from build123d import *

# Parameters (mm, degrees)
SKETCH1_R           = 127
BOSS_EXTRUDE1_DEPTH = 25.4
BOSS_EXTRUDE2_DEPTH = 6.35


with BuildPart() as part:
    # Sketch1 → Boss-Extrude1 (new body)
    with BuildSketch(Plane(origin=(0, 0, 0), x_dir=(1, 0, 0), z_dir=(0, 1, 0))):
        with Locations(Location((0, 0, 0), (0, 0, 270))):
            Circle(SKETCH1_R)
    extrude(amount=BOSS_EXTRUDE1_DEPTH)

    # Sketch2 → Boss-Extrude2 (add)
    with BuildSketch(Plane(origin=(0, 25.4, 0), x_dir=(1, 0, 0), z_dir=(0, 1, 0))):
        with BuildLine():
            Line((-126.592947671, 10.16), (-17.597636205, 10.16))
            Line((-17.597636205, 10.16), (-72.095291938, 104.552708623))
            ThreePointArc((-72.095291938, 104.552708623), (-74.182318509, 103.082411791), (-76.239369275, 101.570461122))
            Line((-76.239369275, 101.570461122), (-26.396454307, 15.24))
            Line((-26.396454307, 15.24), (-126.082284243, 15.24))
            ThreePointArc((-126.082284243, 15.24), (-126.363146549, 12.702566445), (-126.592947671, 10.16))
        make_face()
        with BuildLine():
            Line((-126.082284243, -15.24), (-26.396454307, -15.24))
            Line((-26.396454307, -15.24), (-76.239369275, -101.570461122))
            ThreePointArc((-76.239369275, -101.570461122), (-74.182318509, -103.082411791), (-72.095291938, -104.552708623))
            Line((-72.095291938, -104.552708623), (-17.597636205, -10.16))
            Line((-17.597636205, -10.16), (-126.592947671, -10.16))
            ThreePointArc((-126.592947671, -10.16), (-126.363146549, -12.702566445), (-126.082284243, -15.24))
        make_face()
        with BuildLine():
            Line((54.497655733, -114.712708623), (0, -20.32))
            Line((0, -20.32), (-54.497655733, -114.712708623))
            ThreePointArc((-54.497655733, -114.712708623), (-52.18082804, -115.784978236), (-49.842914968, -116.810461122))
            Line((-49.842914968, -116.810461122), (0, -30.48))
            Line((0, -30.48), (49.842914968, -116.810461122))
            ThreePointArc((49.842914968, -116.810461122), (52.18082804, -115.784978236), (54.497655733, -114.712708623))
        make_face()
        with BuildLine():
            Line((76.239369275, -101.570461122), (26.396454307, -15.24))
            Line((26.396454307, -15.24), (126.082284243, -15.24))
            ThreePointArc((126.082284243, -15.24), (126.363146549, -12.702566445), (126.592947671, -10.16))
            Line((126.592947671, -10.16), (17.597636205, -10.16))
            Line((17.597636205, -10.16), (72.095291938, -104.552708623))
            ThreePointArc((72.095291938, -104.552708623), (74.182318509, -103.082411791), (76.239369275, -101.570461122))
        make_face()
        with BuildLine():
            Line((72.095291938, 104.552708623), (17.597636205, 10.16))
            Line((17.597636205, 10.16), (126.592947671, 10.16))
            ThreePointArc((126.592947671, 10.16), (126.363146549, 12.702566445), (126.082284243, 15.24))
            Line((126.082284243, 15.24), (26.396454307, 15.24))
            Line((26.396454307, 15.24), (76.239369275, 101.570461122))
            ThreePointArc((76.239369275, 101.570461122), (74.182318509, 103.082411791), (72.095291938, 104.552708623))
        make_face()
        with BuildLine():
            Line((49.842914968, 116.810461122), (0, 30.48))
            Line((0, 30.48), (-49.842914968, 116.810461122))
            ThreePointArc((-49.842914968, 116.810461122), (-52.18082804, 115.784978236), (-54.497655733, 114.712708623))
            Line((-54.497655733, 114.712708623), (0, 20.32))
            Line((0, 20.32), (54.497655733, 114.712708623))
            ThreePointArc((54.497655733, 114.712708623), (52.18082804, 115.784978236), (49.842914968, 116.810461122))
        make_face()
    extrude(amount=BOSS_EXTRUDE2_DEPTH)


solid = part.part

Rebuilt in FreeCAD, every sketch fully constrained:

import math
import FreeCAD as App
import Part
import Sketcher
from FreeCAD import Vector
Q = App.Units.Quantity

doc = App.newDocument("Part")
body = doc.addObject("PartDesign::Body", "Body")

sketch1 = body.newObject("Sketcher::SketchObject", "Sketch")
sketch1.AttachmentSupport = (doc.getObject("XZ_Plane"), [""])
sketch1.MapMode = "FlatFace"
sketch1.addGeometry(Part.Circle(Vector(0, 0, 0), Vector(0, 0, 1), 127), False)
sketch1.addConstraint([
    Sketcher.Constraint("Coincident", 0, 3, -1, 1),
    Sketcher.Constraint("Diameter", 0, Q("10 in")),
])
pad1 = body.newObject("PartDesign::Pad", "Pad")
pad1.Profile = sketch1
pad1.Length = Q("1 in")
pad1.Reversed = True

sketch2 = body.newObject("Sketcher::SketchObject", "Sketch001")
sketch2.AttachmentSupport = (doc.getObject("XZ_Plane"), [""])
sketch2.MapMode = "FlatFace"
sketch2.AttachmentOffset = App.Placement(Vector(0, 0, -1 * 25.4), App.Rotation())
sketch2.addGeometry([
    Part.LineSegment(Vector(-127, -10, 0), Vector(-18, -10, 0)),
    Part.LineSegment(Vector(-18, -10, 0), Vector(-72, -105, 0)),
    Part.ArcOfCircle(Part.Circle(Vector(0, 0, 0), Vector(0, 0, 1), 127), math.radians(-126.89), math.radians(-124.59)),
    Part.LineSegment(Vector(-76, -102, 0), Vector(-26, -15, 0)),
    Part.LineSegment(Vector(-26, -15, 0), Vector(-126, -15, 0)),
    Part.ArcOfCircle(Part.Circle(Vector(0, 0, 0), Vector(0, 0, 1), 127), math.radians(-175.41), math.radians(-173.11)),
    Part.LineSegment(Vector(-126, 15, 0), Vector(-26, 15, 0)),
    Part.LineSegment(Vector(-26, 15, 0), Vector(-76, 102, 0)),
    Part.ArcOfCircle(Part.Circle(Vector(0, 0, 0), Vector(0, 0, 1), 127), math.radians(124.59), math.radians(126.89)),
    Part.LineSegment(Vector(-72, 105, 0), Vector(-18, 10, 0)),
    Part.LineSegment(Vector(-18, 10, 0), Vector(-127, 10, 0)),
    Part.ArcOfCircle(Part.Circle(Vector(0, 0, 0), Vector(0, 0, 1), 127), math.radians(173.11), math.radians(175.41)),
    Part.LineSegment(Vector(54, 115, 0), Vector(0, 20, 0)),
    Part.LineSegment(Vector(0, 20, 0), Vector(-54, 115, 0)),
    Part.ArcOfCircle(Part.Circle(Vector(0, 0, 0), Vector(0, 0, 1), 127), math.radians(113.11), math.radians(115.41)),
    Part.LineSegment(Vector(-50, 117, 0), Vector(0, 30, 0)),
    Part.LineSegment(Vector(0, 30, 0), Vector(50, 117, 0)),
    Part.ArcOfCircle(Part.Circle(Vector(0, 0, 0), Vector(0, 0, 1), 127), math.radians(64.59), math.radians(66.89)),
    Part.LineSegment(Vector(76, 102, 0), Vector(26, 15, 0)),
    Part.LineSegment(Vector(26, 15, 0), Vector(126, 15, 0)),
    Part.ArcOfCircle(Part.Circle(Vector(0, 0, 0), Vector(0, 0, 1), 127), math.radians(4.59), math.radians(6.89)),
    Part.LineSegment(Vector(127, 10, 0), Vector(18, 10, 0)),
    Part.LineSegment(Vector(18, 10, 0), Vector(72, 105, 0)),
    Part.ArcOfCircle(Part.Circle(Vector(0, 0, 0), Vector(0, 0, 1), 127), math.radians(53.11), math.radians(55.41)),
    Part.LineSegment(Vector(72, -105, 0), Vector(18, -10, 0)),
    Part.LineSegment(Vector(18, -10, 0), Vector(127, -10, 0)),
    Part.ArcOfCircle(Part.Circle(Vector(0, 0, 0), Vector(0, 0, 1), 127), math.radians(-6.89), math.radians(-4.59)),
    Part.LineSegment(Vector(126, -15, 0), Vector(26, -15, 0)),
    Part.LineSegment(Vector(26, -15, 0), Vector(76, -102, 0)),
    Part.ArcOfCircle(Part.Circle(Vector(0, 0, 0), Vector(0, 0, 1), 127), math.radians(-55.41), math.radians(-53.11)),
    Part.LineSegment(Vector(50, -117, 0), Vector(0, -30, 0)),
    Part.LineSegment(Vector(0, -30, 0), Vector(-50, -117, 0)),
    Part.ArcOfCircle(Part.Circle(Vector(0, 0, 0), Vector(0, 0, 1), 127), math.radians(-115.41), math.radians(-113.11)),
    Part.LineSegment(Vector(-54, -115, 0), Vector(0, -20, 0)),
    Part.LineSegment(Vector(0, -20, 0), Vector(54, -115, 0)),
    Part.ArcOfCircle(Part.Circle(Vector(0, 0, 0), Vector(0, 0, 1), 127), math.radians(-66.89), math.radians(-64.59)),
], False)
sketch2.addConstraint([
    Sketcher.Constraint("Coincident", 0, 2, 1, 1),
    Sketcher.Constraint("Coincident", 1, 2, 2, 2),
    Sketcher.Constraint("Coincident", 2, 1, 3, 1),
    Sketcher.Constraint("Coincident", 3, 2, 4, 1),
    Sketcher.Constraint("Coincident", 4, 2, 5, 2),
    Sketcher.Constraint("Coincident", 5, 1, 0, 1),
    Sketcher.Constraint("Coincident", 6, 2, 7, 1),
    Sketcher.Constraint("Coincident", 7, 2, 8, 2),
    Sketcher.Constraint("Coincident", 8, 1, 9, 1),
    Sketcher.Constraint("Coincident", 9, 2, 10, 1),
    Sketcher.Constraint("Coincident", 10, 2, 11, 2),
    Sketcher.Constraint("Coincident", 11, 1, 6, 1),
    Sketcher.Constraint("Coincident", 12, 2, 13, 1),
    Sketcher.Constraint("Coincident", 13, 2, 14, 2),
    Sketcher.Constraint("Coincident", 14, 1, 15, 1),
    Sketcher.Constraint("Coincident", 15, 2, 16, 1),
    Sketcher.Constraint("Coincident", 16, 2, 17, 2),
    Sketcher.Constraint("Coincident", 17, 1, 12, 1),
    Sketcher.Constraint("Coincident", 18, 2, 19, 1),
    Sketcher.Constraint("Coincident", 19, 2, 20, 2),
    Sketcher.Constraint("Coincident", 20, 1, 21, 1),
    Sketcher.Constraint("Coincident", 21, 2, 22, 1),
    Sketcher.Constraint("Coincident", 22, 2, 23, 2),
    Sketcher.Constraint("Coincident", 23, 1, 18, 1),
    Sketcher.Constraint("Coincident", 24, 2, 25, 1),
    Sketcher.Constraint("Coincident", 25, 2, 26, 2),
    Sketcher.Constraint("Coincident", 26, 1, 27, 1),
    Sketcher.Constraint("Coincident", 27, 2, 28, 1),
    Sketcher.Constraint("Coincident", 28, 2, 29, 2),
    Sketcher.Constraint("Coincident", 29, 1, 24, 1),
    Sketcher.Constraint("Coincident", 30, 2, 31, 1),
    Sketcher.Constraint("Coincident", 31, 2, 32, 2),
    Sketcher.Constraint("Coincident", 32, 1, 33, 1),
    Sketcher.Constraint("Coincident", 33, 2, 34, 1),
    Sketcher.Constraint("Coincident", 34, 2, 35, 2),
    Sketcher.Constraint("Coincident", 35, 1, 30, 1),
    Sketcher.Constraint("Horizontal", 0),
    Sketcher.Constraint("Horizontal", 4),
    Sketcher.Constraint("Horizontal", 6),
    Sketcher.Constraint("Horizontal", 10),
    Sketcher.Constraint("Horizontal", 19),
    Sketcher.Constraint("Horizontal", 21),
    Sketcher.Constraint("Horizontal", 25),
    Sketcher.Constraint("Horizontal", 27),
    Sketcher.Constraint("Coincident", 2, 3, -1, 1),
    Sketcher.Constraint("Coincident", 5, 3, -1, 1),
    Sketcher.Constraint("Coincident", 8, 3, -1, 1),
    Sketcher.Constraint("Coincident", 11, 3, -1, 1),
    Sketcher.Constraint("Coincident", 14, 3, -1, 1),
    Sketcher.Constraint("Coincident", 17, 3, -1, 1),
    Sketcher.Constraint("Coincident", 20, 3, -1, 1),
    Sketcher.Constraint("Coincident", 23, 3, -1, 1),
    Sketcher.Constraint("Coincident", 26, 3, -1, 1),
    Sketcher.Constraint("Coincident", 29, 3, -1, 1),
    Sketcher.Constraint("Coincident", 32, 3, -1, 1),
    Sketcher.Constraint("Coincident", 35, 3, -1, 1),
    Sketcher.Constraint("Equal", 2, 5),
    Sketcher.Constraint("Equal", 5, 8),
    Sketcher.Constraint("Equal", 8, 11),
    Sketcher.Constraint("Equal", 11, 14),
    Sketcher.Constraint("Equal", 14, 17),
    Sketcher.Constraint("Equal", 17, 20),
    Sketcher.Constraint("Equal", 20, 23),
    Sketcher.Constraint("Equal", 23, 26),
    Sketcher.Constraint("Equal", 26, 29),
    Sketcher.Constraint("Equal", 29, 32),
    Sketcher.Constraint("Equal", 32, 35),
    Sketcher.Constraint("Symmetric", 3, 2, 18, 2, -1, 1),
    Sketcher.Constraint("Symmetric", 0, 2, 21, 2, -1, 1),
    Sketcher.Constraint("Symmetric", 9, 2, 24, 2, -1, 1),
    Sketcher.Constraint("Symmetric", 6, 2, 27, 2, -1, 1),
    Sketcher.Constraint("Symmetric", 15, 2, 30, 2, -1, 1),
    Sketcher.Constraint("Symmetric", 12, 2, 33, 2, -1, 1),
    Sketcher.Constraint("Symmetric", 6, 2, 18, 2, -2),
    Sketcher.Constraint("Symmetric", 9, 2, 21, 2, -2),
    Sketcher.Constraint("PointOnObject", 12, 2, -2),
    Sketcher.Constraint("PointOnObject", 15, 2, -2),
    Sketcher.Constraint("Parallel", 1, 3),
    Sketcher.Constraint("Parallel", 7, 9),
    Sketcher.Constraint("Parallel", 3, 12),
    Sketcher.Constraint("Parallel", 9, 13),
    Sketcher.Constraint("Parallel", 13, 15),
    Sketcher.Constraint("Parallel", 12, 16),
    Sketcher.Constraint("Parallel", 16, 18),
    Sketcher.Constraint("Parallel", 18, 22),
    Sketcher.Constraint("Parallel", 15, 24),
    Sketcher.Constraint("Parallel", 24, 28),
    Sketcher.Constraint("Parallel", 28, 30),
    Sketcher.Constraint("Parallel", 22, 31),
    Sketcher.Constraint("Parallel", 31, 33),
    Sketcher.Constraint("Parallel", 30, 34),
    Sketcher.Constraint("Horizontal", 14, 1, 16, 2),
    Sketcher.Constraint("Equal", 9, 12),
    Sketcher.Constraint("Equal", 7, 15),
    Sketcher.Constraint("Radius", 2, Q("5 in")),
    Sketcher.Constraint("Angle", 1, Q("-120 deg")),
    Sketcher.Constraint("DistanceY", 0, 2, 6, 2, Q("1 in")),
    Sketcher.Constraint("DistanceY", 0, 2, -1, 1, Q("0.4 in")),
    Sketcher.Constraint("DistanceY", -1, 1, 12, 2, Q("0.8 in")),
    Sketcher.Constraint("DistanceY", -1, 1, 15, 2, Q("1.2 in")),
])
pad2 = body.newObject("PartDesign::Pad", "Pad001")
pad2.Profile = sketch2
pad2.Length = Q("0.25 in")
pad2.Reversed = True

doc.recompute()
